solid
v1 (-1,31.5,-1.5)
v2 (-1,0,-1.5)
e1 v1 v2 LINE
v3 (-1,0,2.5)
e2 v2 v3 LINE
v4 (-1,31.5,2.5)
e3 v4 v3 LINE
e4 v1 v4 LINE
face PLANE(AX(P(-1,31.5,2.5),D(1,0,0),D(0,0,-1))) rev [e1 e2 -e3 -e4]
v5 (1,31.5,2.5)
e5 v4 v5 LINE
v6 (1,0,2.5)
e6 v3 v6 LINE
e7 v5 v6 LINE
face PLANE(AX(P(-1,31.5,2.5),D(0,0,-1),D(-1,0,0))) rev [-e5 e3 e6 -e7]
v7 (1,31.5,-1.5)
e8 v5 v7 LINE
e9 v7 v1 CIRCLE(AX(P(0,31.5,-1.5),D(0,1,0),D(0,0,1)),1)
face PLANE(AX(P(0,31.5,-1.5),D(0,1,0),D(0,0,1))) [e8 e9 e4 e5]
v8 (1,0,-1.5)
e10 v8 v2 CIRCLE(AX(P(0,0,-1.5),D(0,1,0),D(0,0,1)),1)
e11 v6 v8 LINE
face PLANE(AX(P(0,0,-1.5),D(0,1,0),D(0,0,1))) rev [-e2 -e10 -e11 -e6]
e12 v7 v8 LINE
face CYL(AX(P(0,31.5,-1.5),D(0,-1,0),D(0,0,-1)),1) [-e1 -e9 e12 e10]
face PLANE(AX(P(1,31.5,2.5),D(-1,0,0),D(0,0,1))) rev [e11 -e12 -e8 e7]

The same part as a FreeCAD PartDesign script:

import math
import FreeCAD as App
import Part
import Sketcher

V = App.Vector

doc = App.newDocument("Part")
body = doc.addObject("PartDesign::Body", "Body")

# Sketch on XZ plane
sketch1 = doc.addObject("Sketcher::SketchObject", "Sketch")
body.addObject(sketch1)
sketch1.AttachmentSupport = (doc.XZ_Plane, [""])
sketch1.MapMode = "FlatFace"
sketch1.addGeometry([
    Part.LineSegment(V(-1, 2.5, 0), V(1, 2.5, 0)),
    Part.LineSegment(V(1, 2.5, 0), V(1, -1.5, 0)),
    Part.ArcOfCircle(Part.Circle(V(0, -1.5, 0), V(0, 0, 1), 1), math.radians(180), math.radians(360)),
    Part.LineSegment(V(-1, -1.5, 0), V(-1, 2.5, 0)),
], False)
sketch1.addConstraint([
    Sketcher.Constraint("Coincident", 0, 2, 1, 1),
    Sketcher.Constraint("Tangent", 1, 2, 2, 2),
    Sketcher.Constraint("Tangent", 2, 1, 3, 1),
    Sketcher.Constraint("Coincident", 3, 2, 0, 1),
    Sketcher.Constraint("Horizontal", 0),
    Sketcher.Constraint("Vertical", 1),
    Sketcher.Constraint("Vertical", 3),
    Sketcher.Constraint("PointOnObject", 2, 3, -2),
    Sketcher.Constraint("Radius", 2, 1.0),
    Sketcher.Constraint("DistanceY", 1, 2, 1, 1, 4.0),
    Sketcher.Constraint("DistanceY", 2, 3, -1, 1, 1.5),
])
pad1 = doc.addObject("PartDesign::Pad", "Pad")
body.addObject(pad1)
pad1.Profile = sketch1
pad1.Length = 31.5
pad1.Reversed = True

doc.recompute()
